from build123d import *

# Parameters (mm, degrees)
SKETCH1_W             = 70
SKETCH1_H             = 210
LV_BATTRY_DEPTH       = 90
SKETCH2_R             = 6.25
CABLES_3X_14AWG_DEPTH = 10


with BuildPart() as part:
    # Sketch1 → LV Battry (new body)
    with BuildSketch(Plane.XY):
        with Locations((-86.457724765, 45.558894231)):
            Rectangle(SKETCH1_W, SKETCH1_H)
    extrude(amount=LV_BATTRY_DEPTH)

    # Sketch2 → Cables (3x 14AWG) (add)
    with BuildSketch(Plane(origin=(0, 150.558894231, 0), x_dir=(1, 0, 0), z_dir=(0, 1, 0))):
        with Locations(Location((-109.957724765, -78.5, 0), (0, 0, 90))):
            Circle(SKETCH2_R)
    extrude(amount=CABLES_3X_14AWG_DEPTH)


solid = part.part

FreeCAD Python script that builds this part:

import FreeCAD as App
import Part
import Sketcher
Q = App.Units.Quantity

doc = App.newDocument("Part")
body = doc.addObject("PartDesign::Body", "Body")

sketch1 = body.newObject("Sketcher::SketchObject", "Sketch")
sketch1.AttachmentSupport = (doc.getObject("XY_Plane"), [""])
sketch1.MapMode = "FlatFace"
sketch1.addGeometry(Part.LineSegment(App.Vector(-121.457725, 150.558894, 0), App.Vector(-121.457725, -59.441106, 0)), False)
sketch1.addGeometry(Part.LineSegment(App.Vector(-121.457725, -59.441106, 0), App.Vector(-51.457725, -59.441106, 0)), False)
sketch1.addGeometry(Part.LineSegment(App.Vector(-51.457725, -59.441106, 0), App.Vector(-51.457725, 150.558894, 0)), False)
sketch1.addGeometry(Part.LineSegment(App.Vector(-51.457725, 150.558894, 0), App.Vector(-121.457725, 150.558894, 0)), False)
sketch1.addConstraint(Sketcher.Constraint("Coincident", 0, 2, 1, 1))
sketch1.addConstraint(Sketcher.Constraint("Coincident", 1, 2, 2, 1))
sketch1.addConstraint(Sketcher.Constraint("Coincident", 2, 2, 3, 1))
sketch1.addConstraint(Sketcher.Constraint("Coincident", 3, 2, 0, 1))
sketch1.addConstraint(Sketcher.Constraint("Vertical", 0))
sketch1.addConstraint(Sketcher.Constraint("Horizontal", 1))
sketch1.addConstraint(Sketcher.Constraint("Vertical", 2))
sketch1.addConstraint(Sketcher.Constraint("Horizontal", 3))
sketch1.addConstraint(Sketcher.Constraint("DistanceX", 1, 1, 1, 2, Q("70 mm")))
sketch1.addConstraint(Sketcher.Constraint("DistanceY", 0, 2, 0, 1, Q("210 mm")))
sketch1.addConstraint(Sketcher.Constraint("DistanceX", 0, 2, -1, 1, Q("121.457725 mm")))
sketch1.addConstraint(Sketcher.Constraint("DistanceY", 0, 2, -1, 1, Q("59.441106 mm")))
pad1 = body.newObject("PartDesign::Pad", "Pad")
pad1.Profile = sketch1
pad1.Length = 90

sketch2 = body.newObject("Sketcher::SketchObject", "Sketch001")
sketch2.AttachmentSupport = (doc.getObject("XZ_Plane"), [""])
sketch2.MapMode = "FlatFace"
sketch2.AttachmentOffset = App.Placement(App.Vector(0, 0, -150.558894), App.Rotation())
sketch2.addGeometry(Part.Circle(App.Vector(-109.957725, 78.5, 0), App.Vector(0, 0, 1), 6.25), False)
sketch2.addConstraint(Sketcher.Constraint("Diameter", 0, Q("12.5 mm")))
sketch2.addConstraint(Sketcher.Constraint("DistanceY", -1, 1, 0, 3, Q("78.5 mm")))
sketch2.addConstraint(Sketcher.Constraint("DistanceX", 0, 3, -1, 1, Q("109.957725 mm")))
pad2 = body.newObject("PartDesign::Pad", "Pad001")
pad2.Profile = sketch2
pad2.Length = 10
pad2.Reversed = True

doc.recompute()
